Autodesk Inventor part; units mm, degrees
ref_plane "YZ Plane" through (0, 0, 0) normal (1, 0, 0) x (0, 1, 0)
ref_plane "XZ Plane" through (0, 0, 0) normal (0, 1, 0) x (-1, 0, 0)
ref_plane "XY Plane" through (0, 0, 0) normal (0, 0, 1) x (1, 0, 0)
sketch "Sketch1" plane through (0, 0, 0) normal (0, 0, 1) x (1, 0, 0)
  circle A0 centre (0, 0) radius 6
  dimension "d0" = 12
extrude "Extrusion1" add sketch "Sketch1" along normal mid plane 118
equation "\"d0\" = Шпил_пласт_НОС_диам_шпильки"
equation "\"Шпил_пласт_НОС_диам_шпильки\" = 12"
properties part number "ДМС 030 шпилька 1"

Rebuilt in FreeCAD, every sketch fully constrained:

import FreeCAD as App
import Part
import Sketcher

V = App.Vector

doc = App.newDocument("Part")
body = doc.addObject("PartDesign::Body", "Body")

sketch1 = doc.addObject("Sketcher::SketchObject", "Sketch")
body.addObject(sketch1)
sketch1.AttachmentSupport = (doc.XY_Plane, [""])
sketch1.MapMode = "FlatFace"
sketch1.addGeometry(Part.Circle(V(0, 0, 0), V(0, 0, 1), 6), False)
sketch1.addConstraint([
    Sketcher.Constraint("Coincident", 0, 3, -1, 1),
    Sketcher.Constraint("Diameter", 0, 12.0),
])
pad1 = doc.addObject("PartDesign::Pad", "Pad")
body.addObject(pad1)
pad1.Profile = sketch1
pad1.Length = 118
pad1.Midplane = True

doc.recompute()
